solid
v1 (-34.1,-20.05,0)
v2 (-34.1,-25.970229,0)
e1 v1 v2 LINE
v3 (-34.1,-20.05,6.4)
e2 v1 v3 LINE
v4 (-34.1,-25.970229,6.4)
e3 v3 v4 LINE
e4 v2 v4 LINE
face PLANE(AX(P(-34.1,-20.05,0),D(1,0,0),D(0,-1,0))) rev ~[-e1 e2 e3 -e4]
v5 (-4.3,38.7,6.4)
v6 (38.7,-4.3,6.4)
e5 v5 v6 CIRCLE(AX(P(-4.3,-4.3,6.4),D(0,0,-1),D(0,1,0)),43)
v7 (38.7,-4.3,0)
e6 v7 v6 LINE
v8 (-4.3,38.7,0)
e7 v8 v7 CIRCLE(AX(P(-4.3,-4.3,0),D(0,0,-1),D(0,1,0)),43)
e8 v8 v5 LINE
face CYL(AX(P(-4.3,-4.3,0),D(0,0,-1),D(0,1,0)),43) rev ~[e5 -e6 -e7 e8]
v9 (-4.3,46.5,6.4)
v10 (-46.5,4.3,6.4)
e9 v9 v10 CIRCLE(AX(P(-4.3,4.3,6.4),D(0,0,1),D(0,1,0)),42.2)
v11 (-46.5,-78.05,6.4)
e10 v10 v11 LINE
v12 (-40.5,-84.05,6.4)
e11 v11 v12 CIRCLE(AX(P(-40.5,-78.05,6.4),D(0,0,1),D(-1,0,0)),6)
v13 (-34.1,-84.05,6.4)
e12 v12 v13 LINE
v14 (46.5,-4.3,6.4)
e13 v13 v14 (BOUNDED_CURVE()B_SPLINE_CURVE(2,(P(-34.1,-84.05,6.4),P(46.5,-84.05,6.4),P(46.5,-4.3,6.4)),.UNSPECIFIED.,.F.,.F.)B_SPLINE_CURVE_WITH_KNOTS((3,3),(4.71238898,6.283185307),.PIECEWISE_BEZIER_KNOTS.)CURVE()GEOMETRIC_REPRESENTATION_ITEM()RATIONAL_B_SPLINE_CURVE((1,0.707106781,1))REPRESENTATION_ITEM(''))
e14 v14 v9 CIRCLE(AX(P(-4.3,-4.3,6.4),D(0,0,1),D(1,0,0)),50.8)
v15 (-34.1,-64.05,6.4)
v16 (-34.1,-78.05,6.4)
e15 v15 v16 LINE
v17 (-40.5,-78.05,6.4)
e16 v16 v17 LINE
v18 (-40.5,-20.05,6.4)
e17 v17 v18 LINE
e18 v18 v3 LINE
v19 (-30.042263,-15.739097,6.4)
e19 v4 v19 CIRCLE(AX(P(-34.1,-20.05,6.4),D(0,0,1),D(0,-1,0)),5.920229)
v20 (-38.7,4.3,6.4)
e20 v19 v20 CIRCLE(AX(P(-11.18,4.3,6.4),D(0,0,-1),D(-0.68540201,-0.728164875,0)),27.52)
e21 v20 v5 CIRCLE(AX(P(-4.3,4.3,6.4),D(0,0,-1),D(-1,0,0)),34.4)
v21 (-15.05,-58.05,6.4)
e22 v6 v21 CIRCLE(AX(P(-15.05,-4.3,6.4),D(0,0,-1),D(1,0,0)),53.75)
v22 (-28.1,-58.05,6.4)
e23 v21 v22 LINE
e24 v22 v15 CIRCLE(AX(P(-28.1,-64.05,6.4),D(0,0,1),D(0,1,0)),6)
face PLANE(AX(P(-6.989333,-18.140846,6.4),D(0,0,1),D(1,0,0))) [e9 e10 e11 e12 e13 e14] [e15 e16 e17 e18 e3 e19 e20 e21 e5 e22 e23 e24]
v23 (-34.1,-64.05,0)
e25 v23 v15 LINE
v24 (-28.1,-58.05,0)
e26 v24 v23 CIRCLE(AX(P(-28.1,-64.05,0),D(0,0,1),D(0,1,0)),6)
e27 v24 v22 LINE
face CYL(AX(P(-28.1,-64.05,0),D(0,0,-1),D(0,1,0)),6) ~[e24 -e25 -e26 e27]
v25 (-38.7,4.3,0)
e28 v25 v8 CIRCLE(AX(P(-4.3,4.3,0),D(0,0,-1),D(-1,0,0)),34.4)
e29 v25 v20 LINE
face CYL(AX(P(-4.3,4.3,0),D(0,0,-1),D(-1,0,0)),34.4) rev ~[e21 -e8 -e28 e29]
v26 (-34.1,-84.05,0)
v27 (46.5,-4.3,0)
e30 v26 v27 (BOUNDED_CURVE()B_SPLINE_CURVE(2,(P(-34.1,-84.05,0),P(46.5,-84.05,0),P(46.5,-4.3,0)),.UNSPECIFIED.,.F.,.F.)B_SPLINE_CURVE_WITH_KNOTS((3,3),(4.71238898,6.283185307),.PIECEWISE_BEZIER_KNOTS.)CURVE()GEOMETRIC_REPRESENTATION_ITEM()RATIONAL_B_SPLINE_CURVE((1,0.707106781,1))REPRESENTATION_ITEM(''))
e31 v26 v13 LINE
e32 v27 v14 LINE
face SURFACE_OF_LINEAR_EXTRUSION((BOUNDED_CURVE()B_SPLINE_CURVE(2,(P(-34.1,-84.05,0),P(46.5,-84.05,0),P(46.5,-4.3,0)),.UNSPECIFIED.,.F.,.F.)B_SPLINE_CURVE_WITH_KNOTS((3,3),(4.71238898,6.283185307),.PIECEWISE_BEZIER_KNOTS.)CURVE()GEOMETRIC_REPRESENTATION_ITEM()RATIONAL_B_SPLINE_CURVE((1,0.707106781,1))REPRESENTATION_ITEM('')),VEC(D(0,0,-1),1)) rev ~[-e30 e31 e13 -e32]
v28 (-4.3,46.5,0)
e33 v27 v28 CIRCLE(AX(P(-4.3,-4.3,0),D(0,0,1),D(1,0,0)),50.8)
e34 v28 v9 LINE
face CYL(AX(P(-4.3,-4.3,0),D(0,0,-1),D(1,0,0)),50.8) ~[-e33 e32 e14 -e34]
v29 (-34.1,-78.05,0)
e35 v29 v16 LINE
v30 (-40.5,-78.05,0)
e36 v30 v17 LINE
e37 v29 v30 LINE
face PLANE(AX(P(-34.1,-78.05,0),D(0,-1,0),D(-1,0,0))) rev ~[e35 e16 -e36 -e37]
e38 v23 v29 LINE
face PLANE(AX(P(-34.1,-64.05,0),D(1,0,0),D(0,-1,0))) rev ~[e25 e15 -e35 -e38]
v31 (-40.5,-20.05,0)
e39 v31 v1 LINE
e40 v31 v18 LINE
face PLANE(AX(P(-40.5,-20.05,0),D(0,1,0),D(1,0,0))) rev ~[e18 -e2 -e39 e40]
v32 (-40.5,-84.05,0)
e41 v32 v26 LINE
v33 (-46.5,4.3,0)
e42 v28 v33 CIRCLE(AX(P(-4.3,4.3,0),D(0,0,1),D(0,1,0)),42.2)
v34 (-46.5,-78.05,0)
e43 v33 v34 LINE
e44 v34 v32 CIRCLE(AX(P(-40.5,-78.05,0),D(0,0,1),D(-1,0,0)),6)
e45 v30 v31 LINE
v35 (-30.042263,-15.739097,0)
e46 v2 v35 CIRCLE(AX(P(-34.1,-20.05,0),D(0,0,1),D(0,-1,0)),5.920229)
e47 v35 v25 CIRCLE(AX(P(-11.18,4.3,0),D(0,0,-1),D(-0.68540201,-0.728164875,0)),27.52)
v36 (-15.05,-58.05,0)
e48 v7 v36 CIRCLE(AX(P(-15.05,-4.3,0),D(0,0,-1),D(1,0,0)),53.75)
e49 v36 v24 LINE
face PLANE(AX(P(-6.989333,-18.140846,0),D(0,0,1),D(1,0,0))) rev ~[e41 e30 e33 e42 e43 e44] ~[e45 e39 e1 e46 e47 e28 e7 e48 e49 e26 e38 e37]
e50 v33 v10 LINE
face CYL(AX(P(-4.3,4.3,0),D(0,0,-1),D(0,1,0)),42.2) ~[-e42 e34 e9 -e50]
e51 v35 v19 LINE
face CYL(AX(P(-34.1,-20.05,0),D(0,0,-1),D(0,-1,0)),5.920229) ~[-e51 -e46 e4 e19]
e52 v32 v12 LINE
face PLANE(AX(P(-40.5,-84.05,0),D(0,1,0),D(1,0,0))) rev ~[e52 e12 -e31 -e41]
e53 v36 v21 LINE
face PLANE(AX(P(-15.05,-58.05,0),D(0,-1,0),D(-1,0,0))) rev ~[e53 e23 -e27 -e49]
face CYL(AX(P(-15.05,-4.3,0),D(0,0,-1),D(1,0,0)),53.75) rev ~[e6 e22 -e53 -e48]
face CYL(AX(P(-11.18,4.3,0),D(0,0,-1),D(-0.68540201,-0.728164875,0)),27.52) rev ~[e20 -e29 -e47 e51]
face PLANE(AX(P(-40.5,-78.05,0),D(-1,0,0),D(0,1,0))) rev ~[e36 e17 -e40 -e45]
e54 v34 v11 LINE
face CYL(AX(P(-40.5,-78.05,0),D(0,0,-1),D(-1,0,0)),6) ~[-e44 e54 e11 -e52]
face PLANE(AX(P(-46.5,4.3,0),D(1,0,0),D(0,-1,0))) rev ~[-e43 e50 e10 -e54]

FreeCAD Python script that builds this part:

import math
import FreeCAD as App
import Part
import Sketcher
from FreeCAD import Vector

doc = App.newDocument("Part")
params = doc.addObject("Spreadsheet::Sheet", "Params")
for row, (alias, value) in enumerate([
    ("sketch1_radius", "6 mm"),
    ("sketch1_radius2", "43 mm"),
    ("sketch1_radius3", "6 mm"),
    ("sketch1_radius4", "50.8 mm"),
    ("sketch1_radius5", "42.2 mm"),
    ("pad1_length", "6.4 mm"),
], start=1):
    params.set(f"A{row}", alias)
    params.set(f"B{row}", "=" + value)
    params.setAlias(f"B{row}", alias)

body = doc.addObject("PartDesign::Body", "Body")

# Sketch on XY plane
sketch1 = body.newObject("Sketcher::SketchObject", "Sketch")
sketch1.AttachmentSupport = (doc.getObject("XY_Plane"), [""])
sketch1.MapMode = "FlatFace"
sketch1.addGeometry([
    Part.LineSegment(Vector(-46.5, 4.3, 0), Vector(-46.5, -78.05, 0)),  # 0
    Part.ArcOfCircle(Part.Circle(Vector(-40.5, -78.05, 0), Vector(0, 0, 1), 6), math.radians(180), math.radians(270)),  # 1
    Part.LineSegment(Vector(-40.5, -84.05, 0), Vector(-34.1, -84.05, 0)),  # 2
    Part.BSplineCurve([Vector(-34.1, -84.05, 0), Vector(46.5, -84.05, 0), Vector(46.5, -4.3, 0)], [3, 3], [4.71238898, 6.283185307], False, 2, [1, 0.707106781, 1], False),  # 3
    Part.ArcOfCircle(Part.Circle(Vector(-4.3, -4.3, 0), Vector(0, 0, 1), 50.8), math.radians(0), math.radians(90)),  # 4
    Part.ArcOfCircle(Part.Circle(Vector(-4.3, 4.3, 0), Vector(0, 0, 1), 42.2), math.radians(90), math.radians(180)),  # 5
    Part.LineSegment(Vector(-34.1, -64.05, 0), Vector(-34.1, -78.05, 0)),  # 6
    Part.LineSegment(Vector(-34.1, -78.05, 0), Vector(-40.5, -78.05, 0)),  # 7
    Part.LineSegment(Vector(-40.5, -78.05, 0), Vector(-40.5, -20.05, 0)),  # 8
    Part.LineSegment(Vector(-40.5, -20.05, 0), Vector(-34.1, -20.05, 0)),  # 9
    Part.LineSegment(Vector(-34.1, -20.05, 0), Vector(-34.1, -25.970229, 0)),  # 10
    Part.ArcOfCircle(Part.Circle(Vector(-34.1, -20.05, 0), Vector(0, 0, 1), 5.920229), math.radians(-90), math.radians(46.732769)),  # 11
    Part.ArcOfCircle(Part.Circle(Vector(-11.18, 4.3, 0), Vector(0, 0, 1), 27.52), math.radians(180), math.radians(226.732769)),  # 12
    Part.ArcOfCircle(Part.Circle(Vector(-4.3, 4.3, 0), Vector(0, 0, 1), 34.4), math.radians(90), math.radians(180)),  # 13
    Part.ArcOfCircle(Part.Circle(Vector(-4.3, -4.3, 0), Vector(0, 0, 1), 43), math.radians(0), math.radians(90)),  # 14
    Part.ArcOfCircle(Part.Circle(Vector(-15.05, -4.3, 0), Vector(0, 0, 1), 53.75), math.radians(-90), math.radians(0)),  # 15
    Part.LineSegment(Vector(-15.05, -58.05, 0), Vector(-28.1, -58.05, 0)),  # 16
    Part.ArcOfCircle(Part.Circle(Vector(-28.1, -64.05, 0), Vector(0, 0, 1), 6), math.radians(90), math.radians(180)),  # 17
], False)
sketch1.addConstraint([
    Sketcher.Constraint("Block", 3),
    Sketcher.Constraint("Coincident", 0, 2, 1, 1),
    Sketcher.Constraint("Coincident", 1, 2, 2, 1),
    Sketcher.Constraint("Coincident", 2, 2, 3, 1),
    Sketcher.Constraint("Coincident", 3, 2, 4, 1),
    Sketcher.Constraint("Coincident", 4, 2, 5, 1),
    Sketcher.Constraint("Coincident", 5, 2, 0, 1),
    Sketcher.Constraint("Coincident", 6, 2, 7, 1),
    Sketcher.Constraint("Coincident", 7, 2, 8, 1),
    Sketcher.Constraint("Coincident", 8, 2, 9, 1),
    Sketcher.Constraint("Coincident", 9, 2, 10, 1),
    Sketcher.Constraint("Coincident", 10, 2, 11, 1),
    Sketcher.Constraint("Coincident", 11, 2, 12, 2),
    Sketcher.Constraint("Coincident", 12, 1, 13, 2),
    Sketcher.Constraint("Coincident", 13, 1, 14, 2),
    Sketcher.Constraint("Coincident", 14, 1, 15, 2),
    Sketcher.Constraint("Coincident", 15, 1, 16, 1),
    Sketcher.Constraint("Coincident", 16, 2, 17, 1),
    Sketcher.Constraint("Coincident", 17, 2, 6, 1),
    Sketcher.Constraint("Vertical", 0),
    Sketcher.Constraint("Horizontal", 2),
    Sketcher.Constraint("Vertical", 6),
    Sketcher.Constraint("Horizontal", 7),
    Sketcher.Constraint("Vertical", 8),
    Sketcher.Constraint("Horizontal", 9),
    Sketcher.Constraint("Vertical", 10),
    Sketcher.Constraint("Horizontal", 16),
    Sketcher.Constraint("Coincident", 13, 3, 5, 3),
    Sketcher.Constraint("Coincident", 14, 3, 4, 3),
    Sketcher.Constraint("Coincident", 7, 2, 1, 3),
    Sketcher.Constraint("Coincident", 9, 2, 11, 3),
    Sketcher.Constraint("Radius", 1, 6.0),
    Sketcher.Constraint("Radius", 14, 43.0),
    Sketcher.Constraint("Radius", 17, 6.0),
    Sketcher.Constraint("Radius", 4, 50.8),
    Sketcher.Constraint("Radius", 5, 42.2),
    Sketcher.Constraint("DistanceY", 6, 2, 6, 1, 14.0),
    Sketcher.Constraint("DistanceY", 8, 1, 8, 2, 58.0),
    Sketcher.Constraint("Radius", 12, 27.52),
    Sketcher.Constraint("Radius", 15, 53.75),
    Sketcher.Constraint("DistanceX", 2, 1, 2, 2, 6.4),
    Sketcher.Constraint("DistanceX", 7, 2, 7, 1, 6.4),
    Sketcher.Constraint("DistanceX", 9, 1, 9, 2, 6.4),
    Sketcher.Constraint("DistanceY", 1, 3, 17, 3, 14.0),
    Sketcher.Constraint("DistanceY", 0, 2, 17, 3, 14.0),
    Sketcher.Constraint("DistanceX", 0, 2, 1, 2, 6.0),
    Sketcher.Constraint("DistanceX", 6, 2, 16, 2, 6.0),
    Sketcher.Constraint("DistanceX", 16, 2, 16, 1, 13.05),
    Sketcher.Constraint("DistanceY", 0, 2, 0, 1, 82.35),
    Sketcher.Constraint("DistanceY", 4, 3, -1, 1, 4.3),
    Sketcher.Constraint("DistanceY", -1, 1, 12, 3, 4.3),
    Sketcher.Constraint("DistanceX", 4, 2, -1, 1, 4.3),
    Sketcher.Constraint("DistanceY", -1, 1, 12, 1, 4.3),
    Sketcher.Constraint("DistanceX", 13, 1, -1, 1, 4.3),
    Sketcher.Constraint("DistanceY", 14, 1, -1, 1, 4.3),
    Sketcher.Constraint("DistanceY", 10, 2, 11, 2, 10.231131),
])
sketch1.setExpression("Constraints[31]", "Params.sketch1_radius")
sketch1.setExpression("Constraints[32]", "Params.sketch1_radius2")
sketch1.setExpression("Constraints[33]", "Params.sketch1_radius3")
sketch1.setExpression("Constraints[34]", "Params.sketch1_radius4")
sketch1.setExpression("Constraints[35]", "Params.sketch1_radius5")
pad1 = body.newObject("PartDesign::Pad", "Pad")
pad1.Profile = sketch1
pad1.setExpression("Length", "Params.pad1_length")

doc.recompute()
